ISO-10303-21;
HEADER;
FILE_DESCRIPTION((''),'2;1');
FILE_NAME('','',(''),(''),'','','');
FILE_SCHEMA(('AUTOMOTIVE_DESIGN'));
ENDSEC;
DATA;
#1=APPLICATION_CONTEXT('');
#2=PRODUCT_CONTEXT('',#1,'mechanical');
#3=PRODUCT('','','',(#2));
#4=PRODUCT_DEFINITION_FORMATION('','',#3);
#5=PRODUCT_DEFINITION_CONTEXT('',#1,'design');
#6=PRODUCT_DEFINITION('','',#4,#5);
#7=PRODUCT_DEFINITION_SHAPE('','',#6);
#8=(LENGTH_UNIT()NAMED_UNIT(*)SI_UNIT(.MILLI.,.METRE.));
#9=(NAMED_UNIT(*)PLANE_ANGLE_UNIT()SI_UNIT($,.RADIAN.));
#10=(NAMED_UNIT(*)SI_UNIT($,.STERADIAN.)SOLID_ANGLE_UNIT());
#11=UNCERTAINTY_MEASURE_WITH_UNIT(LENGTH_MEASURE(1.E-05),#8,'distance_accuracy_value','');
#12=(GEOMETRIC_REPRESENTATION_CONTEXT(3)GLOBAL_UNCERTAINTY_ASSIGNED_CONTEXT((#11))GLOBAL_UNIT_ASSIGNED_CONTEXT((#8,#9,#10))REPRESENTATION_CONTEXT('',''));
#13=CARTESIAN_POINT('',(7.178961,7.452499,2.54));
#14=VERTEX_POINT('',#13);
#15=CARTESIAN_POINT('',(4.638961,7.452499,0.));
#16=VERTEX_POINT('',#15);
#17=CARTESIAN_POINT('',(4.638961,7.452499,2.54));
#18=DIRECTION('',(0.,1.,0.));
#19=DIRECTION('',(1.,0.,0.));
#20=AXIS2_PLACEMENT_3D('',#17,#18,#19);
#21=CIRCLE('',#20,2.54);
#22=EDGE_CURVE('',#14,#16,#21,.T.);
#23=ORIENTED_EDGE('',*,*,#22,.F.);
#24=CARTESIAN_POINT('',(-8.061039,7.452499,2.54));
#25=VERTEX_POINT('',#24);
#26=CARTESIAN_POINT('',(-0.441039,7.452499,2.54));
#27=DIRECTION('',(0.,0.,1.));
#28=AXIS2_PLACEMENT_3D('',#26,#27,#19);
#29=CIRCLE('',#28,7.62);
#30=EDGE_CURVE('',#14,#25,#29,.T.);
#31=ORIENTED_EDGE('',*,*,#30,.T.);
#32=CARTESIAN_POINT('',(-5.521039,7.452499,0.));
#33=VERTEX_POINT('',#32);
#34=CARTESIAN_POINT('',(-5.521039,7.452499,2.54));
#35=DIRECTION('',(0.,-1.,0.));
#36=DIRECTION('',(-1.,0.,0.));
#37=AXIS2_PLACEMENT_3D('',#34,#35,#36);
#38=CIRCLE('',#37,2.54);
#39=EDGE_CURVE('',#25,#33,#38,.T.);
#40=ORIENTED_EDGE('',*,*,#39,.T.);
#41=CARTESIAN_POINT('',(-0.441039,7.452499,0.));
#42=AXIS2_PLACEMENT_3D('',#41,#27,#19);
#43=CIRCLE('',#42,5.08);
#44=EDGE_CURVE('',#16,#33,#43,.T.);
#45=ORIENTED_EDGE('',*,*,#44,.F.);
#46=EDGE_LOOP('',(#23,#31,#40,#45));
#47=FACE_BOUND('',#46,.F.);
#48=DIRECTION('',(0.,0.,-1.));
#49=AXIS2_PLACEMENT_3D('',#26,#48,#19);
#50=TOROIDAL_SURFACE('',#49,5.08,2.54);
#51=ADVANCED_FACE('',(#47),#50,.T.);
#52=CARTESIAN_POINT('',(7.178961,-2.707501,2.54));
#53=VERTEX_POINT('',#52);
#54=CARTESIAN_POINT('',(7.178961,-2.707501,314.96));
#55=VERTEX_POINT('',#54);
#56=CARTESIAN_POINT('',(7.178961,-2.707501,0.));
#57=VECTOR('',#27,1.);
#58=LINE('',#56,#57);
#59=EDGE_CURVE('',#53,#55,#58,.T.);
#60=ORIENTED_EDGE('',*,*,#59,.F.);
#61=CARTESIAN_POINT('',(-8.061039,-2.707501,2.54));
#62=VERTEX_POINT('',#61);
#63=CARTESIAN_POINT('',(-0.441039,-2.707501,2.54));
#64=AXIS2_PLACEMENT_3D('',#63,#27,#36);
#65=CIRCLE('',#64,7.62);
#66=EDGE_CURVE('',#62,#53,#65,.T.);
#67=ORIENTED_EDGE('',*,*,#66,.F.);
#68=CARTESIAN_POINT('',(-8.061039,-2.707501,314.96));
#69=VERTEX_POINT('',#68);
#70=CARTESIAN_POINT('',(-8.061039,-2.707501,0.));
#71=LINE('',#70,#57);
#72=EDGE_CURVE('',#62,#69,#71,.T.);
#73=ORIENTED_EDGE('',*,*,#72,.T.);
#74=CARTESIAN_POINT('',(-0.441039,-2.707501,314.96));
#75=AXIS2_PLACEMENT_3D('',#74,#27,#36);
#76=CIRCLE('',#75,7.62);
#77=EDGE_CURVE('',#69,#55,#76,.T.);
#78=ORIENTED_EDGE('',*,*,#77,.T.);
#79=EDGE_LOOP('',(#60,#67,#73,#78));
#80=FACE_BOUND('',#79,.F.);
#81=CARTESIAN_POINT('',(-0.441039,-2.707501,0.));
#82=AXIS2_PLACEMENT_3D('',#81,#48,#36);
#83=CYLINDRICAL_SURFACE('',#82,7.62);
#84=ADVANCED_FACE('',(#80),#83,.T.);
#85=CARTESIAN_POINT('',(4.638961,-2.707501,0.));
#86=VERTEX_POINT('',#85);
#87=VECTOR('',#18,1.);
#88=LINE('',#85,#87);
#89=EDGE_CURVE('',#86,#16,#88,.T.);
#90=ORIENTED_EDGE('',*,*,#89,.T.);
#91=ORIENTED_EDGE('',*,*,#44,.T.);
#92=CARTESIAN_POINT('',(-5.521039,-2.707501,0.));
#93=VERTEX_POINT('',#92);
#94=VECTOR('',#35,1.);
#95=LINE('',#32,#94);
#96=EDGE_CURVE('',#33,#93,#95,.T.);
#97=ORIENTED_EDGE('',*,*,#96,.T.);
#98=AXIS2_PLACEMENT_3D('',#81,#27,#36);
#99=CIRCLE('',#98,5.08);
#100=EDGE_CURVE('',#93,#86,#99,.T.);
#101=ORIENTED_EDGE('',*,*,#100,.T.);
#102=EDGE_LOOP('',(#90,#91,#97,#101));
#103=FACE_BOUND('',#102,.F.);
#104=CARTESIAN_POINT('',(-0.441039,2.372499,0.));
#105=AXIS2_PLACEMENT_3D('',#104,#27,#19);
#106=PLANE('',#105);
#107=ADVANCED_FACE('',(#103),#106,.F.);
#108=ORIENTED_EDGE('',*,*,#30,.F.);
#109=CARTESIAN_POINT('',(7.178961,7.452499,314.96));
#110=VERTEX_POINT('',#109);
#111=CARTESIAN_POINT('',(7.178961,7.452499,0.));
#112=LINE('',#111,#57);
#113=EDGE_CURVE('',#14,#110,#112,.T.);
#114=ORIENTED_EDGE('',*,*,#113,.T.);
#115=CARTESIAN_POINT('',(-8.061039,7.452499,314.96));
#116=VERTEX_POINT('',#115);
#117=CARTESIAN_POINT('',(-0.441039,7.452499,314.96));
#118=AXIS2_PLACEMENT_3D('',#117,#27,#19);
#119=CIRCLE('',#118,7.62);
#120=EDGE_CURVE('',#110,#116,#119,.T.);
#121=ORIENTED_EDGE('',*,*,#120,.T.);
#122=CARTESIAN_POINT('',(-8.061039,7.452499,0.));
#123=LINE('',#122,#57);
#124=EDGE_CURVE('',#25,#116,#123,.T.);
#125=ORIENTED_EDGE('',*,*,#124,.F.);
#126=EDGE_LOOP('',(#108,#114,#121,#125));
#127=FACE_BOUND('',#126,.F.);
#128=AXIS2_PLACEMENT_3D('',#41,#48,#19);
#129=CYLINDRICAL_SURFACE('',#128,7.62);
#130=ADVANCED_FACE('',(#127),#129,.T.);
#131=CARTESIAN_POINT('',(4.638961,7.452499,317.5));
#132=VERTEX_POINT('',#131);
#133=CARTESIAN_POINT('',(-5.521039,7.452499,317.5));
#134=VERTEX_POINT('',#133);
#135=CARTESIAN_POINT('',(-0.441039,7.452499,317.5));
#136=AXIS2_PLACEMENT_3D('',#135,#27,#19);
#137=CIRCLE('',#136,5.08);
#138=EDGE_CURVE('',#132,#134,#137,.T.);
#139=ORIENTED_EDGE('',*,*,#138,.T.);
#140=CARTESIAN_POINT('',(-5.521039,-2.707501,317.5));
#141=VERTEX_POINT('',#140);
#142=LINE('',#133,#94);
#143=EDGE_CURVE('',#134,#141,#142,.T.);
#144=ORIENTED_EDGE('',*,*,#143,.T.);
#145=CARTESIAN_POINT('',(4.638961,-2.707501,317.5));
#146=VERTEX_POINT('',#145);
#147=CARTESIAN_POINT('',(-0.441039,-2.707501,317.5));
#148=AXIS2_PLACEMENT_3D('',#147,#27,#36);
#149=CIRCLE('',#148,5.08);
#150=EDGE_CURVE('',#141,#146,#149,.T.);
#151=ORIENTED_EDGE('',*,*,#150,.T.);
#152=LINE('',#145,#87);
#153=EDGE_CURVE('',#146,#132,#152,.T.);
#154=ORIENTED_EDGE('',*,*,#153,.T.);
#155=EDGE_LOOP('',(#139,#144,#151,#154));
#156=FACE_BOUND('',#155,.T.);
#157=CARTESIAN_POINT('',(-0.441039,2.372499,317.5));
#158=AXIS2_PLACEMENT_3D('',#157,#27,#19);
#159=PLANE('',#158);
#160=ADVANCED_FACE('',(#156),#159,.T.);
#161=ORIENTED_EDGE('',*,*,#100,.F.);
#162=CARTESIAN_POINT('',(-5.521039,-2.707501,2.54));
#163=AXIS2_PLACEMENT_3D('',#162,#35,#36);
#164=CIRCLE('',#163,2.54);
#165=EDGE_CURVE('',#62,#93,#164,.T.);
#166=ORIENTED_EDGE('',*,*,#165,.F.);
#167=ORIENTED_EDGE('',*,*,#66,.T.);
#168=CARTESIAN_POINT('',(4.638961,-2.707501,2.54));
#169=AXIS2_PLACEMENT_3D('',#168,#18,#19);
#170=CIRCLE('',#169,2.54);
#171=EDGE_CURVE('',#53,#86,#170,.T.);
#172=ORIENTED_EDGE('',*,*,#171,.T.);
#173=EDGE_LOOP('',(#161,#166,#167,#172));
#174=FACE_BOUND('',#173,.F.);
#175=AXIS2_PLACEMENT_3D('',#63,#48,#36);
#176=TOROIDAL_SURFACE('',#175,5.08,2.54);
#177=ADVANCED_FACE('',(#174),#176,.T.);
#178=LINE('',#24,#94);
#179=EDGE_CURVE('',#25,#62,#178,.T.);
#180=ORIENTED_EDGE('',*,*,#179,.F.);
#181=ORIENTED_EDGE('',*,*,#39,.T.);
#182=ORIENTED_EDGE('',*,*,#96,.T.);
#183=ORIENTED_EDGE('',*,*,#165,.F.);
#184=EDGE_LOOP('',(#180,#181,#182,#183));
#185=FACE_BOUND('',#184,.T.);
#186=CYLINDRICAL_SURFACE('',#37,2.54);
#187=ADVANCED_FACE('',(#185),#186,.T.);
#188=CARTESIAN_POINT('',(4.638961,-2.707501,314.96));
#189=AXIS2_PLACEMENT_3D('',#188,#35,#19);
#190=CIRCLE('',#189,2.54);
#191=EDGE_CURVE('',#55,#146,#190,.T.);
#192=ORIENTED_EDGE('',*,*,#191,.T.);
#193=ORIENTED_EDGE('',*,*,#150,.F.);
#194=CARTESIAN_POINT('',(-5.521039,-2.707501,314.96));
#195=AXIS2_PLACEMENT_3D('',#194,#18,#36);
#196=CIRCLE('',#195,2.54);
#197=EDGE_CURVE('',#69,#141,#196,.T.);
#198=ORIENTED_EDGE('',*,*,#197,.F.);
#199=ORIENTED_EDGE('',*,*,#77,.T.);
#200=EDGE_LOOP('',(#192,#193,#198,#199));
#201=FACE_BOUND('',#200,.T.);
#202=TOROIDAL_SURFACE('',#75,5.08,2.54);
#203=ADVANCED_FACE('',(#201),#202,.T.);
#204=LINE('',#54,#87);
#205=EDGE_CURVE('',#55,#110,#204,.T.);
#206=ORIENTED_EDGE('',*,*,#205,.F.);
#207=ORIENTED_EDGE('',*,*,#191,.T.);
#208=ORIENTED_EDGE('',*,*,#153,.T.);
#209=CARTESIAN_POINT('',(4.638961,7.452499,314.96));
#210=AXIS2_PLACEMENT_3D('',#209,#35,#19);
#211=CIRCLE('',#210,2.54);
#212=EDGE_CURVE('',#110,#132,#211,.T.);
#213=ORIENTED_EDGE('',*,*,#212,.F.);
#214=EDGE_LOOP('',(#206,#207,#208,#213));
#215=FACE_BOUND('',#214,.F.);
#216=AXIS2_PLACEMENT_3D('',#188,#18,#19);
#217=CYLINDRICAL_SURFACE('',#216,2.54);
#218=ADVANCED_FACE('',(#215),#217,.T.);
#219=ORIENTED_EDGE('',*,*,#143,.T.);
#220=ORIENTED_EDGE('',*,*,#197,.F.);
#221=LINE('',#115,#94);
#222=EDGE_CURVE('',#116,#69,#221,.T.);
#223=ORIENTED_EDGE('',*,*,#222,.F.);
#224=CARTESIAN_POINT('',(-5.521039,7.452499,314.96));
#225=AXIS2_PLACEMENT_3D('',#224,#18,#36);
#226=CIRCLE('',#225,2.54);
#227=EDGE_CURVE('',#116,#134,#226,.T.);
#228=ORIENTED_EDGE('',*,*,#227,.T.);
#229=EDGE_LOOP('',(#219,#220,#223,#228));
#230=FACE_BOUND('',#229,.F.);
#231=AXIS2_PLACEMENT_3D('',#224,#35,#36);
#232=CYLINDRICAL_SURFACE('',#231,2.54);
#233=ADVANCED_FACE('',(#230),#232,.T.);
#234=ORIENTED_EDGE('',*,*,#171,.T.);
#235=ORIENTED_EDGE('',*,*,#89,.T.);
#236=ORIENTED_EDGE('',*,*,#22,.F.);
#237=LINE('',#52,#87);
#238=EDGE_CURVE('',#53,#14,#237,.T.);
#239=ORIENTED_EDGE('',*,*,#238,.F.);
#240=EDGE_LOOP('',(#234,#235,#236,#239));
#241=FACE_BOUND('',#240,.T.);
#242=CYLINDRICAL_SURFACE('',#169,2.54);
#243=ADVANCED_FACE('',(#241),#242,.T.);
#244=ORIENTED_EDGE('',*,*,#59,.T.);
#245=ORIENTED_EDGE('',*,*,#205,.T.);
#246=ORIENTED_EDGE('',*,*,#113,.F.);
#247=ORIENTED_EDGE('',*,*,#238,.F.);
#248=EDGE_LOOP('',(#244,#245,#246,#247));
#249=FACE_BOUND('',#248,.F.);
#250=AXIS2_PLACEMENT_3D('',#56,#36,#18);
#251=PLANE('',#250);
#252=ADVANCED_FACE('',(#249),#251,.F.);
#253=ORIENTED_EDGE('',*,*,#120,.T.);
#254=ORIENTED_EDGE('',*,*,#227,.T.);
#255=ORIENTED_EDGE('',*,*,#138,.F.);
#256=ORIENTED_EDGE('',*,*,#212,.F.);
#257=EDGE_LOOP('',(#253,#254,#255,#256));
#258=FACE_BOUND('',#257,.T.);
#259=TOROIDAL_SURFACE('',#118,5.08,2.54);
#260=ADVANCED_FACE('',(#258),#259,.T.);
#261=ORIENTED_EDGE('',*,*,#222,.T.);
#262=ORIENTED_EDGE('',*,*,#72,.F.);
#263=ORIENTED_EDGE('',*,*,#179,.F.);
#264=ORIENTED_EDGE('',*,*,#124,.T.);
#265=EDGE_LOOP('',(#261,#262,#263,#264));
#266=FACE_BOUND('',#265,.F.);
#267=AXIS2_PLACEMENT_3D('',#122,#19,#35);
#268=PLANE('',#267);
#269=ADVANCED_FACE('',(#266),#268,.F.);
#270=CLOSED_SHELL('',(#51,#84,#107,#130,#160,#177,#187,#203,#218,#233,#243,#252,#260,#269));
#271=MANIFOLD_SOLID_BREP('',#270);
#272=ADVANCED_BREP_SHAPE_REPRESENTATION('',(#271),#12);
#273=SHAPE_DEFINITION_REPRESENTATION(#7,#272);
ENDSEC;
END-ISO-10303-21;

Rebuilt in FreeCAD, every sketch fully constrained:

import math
import FreeCAD as App
import Part
import Sketcher
from FreeCAD import Vector
Q = App.Units.Quantity


def edges_at(feature, points):
    """Names of the edges that pass closest to the given points."""
    edges = feature.Shape.Edges
    near = lambda p: min(range(len(edges)), key=lambda i: edges[i].distToShape(Part.Vertex(*p))[0])
    return sorted({f"Edge{near(p) + 1}" for p in points})

doc = App.newDocument("Part")
body = doc.addObject("PartDesign::Body", "Body")

sketch1 = body.newObject("Sketcher::SketchObject", "Sketch")
sketch1.AttachmentSupport = (doc.getObject("XY_Plane"), [""])
sketch1.MapMode = "FlatFace"
sketch1.addGeometry(Part.LineSegment(Vector(-8, 7, 0), Vector(-8, -3, 0)), False)
sketch1.addGeometry(Part.ArcOfCircle(Part.Circle(Vector(0, -3, 0), Vector(0, 0, 1), 8), math.radians(180), math.radians(360)), False)
sketch1.addGeometry(Part.LineSegment(Vector(7, -3, 0), Vector(7, 7, 0)), False)
sketch1.addGeometry(Part.ArcOfCircle(Part.Circle(Vector(0, 7, 0), Vector(0, 0, 1), 8), math.radians(0), math.radians(180)), False)
sketch1.addConstraint(Sketcher.Constraint("Tangent", 0, 2, 1, 1))
sketch1.addConstraint(Sketcher.Constraint("Tangent", 1, 2, 2, 1))
sketch1.addConstraint(Sketcher.Constraint("Tangent", 2, 2, 3, 1))
sketch1.addConstraint(Sketcher.Constraint("Tangent", 3, 2, 0, 1))
sketch1.addConstraint(Sketcher.Constraint("Vertical", 0))
sketch1.addConstraint(Sketcher.Constraint("Vertical", 2))
sketch1.addConstraint(Sketcher.Constraint("Radius", 1, Q("0.3 in")))
sketch1.addConstraint(Sketcher.Constraint("DistanceY", 0, 2, 0, 1, Q("0.4 in")))
sketch1.addConstraint(Sketcher.Constraint("DistanceY", 1, 3, -1, 1, Q("2.707501 mm")))
sketch1.addConstraint(Sketcher.Constraint("DistanceX", 1, 3, -1, 1, Q("0.441039 mm")))
pad1 = body.newObject("PartDesign::Pad", "Pad")
pad1.Profile = sketch1
pad1.Length = Q("12.5 in")
doc.recompute()

fillet = body.newObject("PartDesign::Fillet", "Fillet")
fillet.Base = (pad1, edges_at(pad1, [
    (-0.441, 15.072, 317.5),
    (7.179, 2.372, 317.5),
    (-0.441, -10.328, 317.5),
    (-8.061, 2.372, 317.5),
]))
fillet.Radius = Q("0.1 in")
doc.recompute()

fillet2 = body.newObject("PartDesign::Fillet", "Fillet001")
fillet2.Base = (fillet, edges_at(fillet, [
    (-0.441, 15.072, 0),
    (-0.441, -10.328, 0),
    (7.179, 2.372, 0),
    (-8.061, 2.372, 0),
]))
fillet2.Radius = Q("0.1 in")

doc.recompute()
